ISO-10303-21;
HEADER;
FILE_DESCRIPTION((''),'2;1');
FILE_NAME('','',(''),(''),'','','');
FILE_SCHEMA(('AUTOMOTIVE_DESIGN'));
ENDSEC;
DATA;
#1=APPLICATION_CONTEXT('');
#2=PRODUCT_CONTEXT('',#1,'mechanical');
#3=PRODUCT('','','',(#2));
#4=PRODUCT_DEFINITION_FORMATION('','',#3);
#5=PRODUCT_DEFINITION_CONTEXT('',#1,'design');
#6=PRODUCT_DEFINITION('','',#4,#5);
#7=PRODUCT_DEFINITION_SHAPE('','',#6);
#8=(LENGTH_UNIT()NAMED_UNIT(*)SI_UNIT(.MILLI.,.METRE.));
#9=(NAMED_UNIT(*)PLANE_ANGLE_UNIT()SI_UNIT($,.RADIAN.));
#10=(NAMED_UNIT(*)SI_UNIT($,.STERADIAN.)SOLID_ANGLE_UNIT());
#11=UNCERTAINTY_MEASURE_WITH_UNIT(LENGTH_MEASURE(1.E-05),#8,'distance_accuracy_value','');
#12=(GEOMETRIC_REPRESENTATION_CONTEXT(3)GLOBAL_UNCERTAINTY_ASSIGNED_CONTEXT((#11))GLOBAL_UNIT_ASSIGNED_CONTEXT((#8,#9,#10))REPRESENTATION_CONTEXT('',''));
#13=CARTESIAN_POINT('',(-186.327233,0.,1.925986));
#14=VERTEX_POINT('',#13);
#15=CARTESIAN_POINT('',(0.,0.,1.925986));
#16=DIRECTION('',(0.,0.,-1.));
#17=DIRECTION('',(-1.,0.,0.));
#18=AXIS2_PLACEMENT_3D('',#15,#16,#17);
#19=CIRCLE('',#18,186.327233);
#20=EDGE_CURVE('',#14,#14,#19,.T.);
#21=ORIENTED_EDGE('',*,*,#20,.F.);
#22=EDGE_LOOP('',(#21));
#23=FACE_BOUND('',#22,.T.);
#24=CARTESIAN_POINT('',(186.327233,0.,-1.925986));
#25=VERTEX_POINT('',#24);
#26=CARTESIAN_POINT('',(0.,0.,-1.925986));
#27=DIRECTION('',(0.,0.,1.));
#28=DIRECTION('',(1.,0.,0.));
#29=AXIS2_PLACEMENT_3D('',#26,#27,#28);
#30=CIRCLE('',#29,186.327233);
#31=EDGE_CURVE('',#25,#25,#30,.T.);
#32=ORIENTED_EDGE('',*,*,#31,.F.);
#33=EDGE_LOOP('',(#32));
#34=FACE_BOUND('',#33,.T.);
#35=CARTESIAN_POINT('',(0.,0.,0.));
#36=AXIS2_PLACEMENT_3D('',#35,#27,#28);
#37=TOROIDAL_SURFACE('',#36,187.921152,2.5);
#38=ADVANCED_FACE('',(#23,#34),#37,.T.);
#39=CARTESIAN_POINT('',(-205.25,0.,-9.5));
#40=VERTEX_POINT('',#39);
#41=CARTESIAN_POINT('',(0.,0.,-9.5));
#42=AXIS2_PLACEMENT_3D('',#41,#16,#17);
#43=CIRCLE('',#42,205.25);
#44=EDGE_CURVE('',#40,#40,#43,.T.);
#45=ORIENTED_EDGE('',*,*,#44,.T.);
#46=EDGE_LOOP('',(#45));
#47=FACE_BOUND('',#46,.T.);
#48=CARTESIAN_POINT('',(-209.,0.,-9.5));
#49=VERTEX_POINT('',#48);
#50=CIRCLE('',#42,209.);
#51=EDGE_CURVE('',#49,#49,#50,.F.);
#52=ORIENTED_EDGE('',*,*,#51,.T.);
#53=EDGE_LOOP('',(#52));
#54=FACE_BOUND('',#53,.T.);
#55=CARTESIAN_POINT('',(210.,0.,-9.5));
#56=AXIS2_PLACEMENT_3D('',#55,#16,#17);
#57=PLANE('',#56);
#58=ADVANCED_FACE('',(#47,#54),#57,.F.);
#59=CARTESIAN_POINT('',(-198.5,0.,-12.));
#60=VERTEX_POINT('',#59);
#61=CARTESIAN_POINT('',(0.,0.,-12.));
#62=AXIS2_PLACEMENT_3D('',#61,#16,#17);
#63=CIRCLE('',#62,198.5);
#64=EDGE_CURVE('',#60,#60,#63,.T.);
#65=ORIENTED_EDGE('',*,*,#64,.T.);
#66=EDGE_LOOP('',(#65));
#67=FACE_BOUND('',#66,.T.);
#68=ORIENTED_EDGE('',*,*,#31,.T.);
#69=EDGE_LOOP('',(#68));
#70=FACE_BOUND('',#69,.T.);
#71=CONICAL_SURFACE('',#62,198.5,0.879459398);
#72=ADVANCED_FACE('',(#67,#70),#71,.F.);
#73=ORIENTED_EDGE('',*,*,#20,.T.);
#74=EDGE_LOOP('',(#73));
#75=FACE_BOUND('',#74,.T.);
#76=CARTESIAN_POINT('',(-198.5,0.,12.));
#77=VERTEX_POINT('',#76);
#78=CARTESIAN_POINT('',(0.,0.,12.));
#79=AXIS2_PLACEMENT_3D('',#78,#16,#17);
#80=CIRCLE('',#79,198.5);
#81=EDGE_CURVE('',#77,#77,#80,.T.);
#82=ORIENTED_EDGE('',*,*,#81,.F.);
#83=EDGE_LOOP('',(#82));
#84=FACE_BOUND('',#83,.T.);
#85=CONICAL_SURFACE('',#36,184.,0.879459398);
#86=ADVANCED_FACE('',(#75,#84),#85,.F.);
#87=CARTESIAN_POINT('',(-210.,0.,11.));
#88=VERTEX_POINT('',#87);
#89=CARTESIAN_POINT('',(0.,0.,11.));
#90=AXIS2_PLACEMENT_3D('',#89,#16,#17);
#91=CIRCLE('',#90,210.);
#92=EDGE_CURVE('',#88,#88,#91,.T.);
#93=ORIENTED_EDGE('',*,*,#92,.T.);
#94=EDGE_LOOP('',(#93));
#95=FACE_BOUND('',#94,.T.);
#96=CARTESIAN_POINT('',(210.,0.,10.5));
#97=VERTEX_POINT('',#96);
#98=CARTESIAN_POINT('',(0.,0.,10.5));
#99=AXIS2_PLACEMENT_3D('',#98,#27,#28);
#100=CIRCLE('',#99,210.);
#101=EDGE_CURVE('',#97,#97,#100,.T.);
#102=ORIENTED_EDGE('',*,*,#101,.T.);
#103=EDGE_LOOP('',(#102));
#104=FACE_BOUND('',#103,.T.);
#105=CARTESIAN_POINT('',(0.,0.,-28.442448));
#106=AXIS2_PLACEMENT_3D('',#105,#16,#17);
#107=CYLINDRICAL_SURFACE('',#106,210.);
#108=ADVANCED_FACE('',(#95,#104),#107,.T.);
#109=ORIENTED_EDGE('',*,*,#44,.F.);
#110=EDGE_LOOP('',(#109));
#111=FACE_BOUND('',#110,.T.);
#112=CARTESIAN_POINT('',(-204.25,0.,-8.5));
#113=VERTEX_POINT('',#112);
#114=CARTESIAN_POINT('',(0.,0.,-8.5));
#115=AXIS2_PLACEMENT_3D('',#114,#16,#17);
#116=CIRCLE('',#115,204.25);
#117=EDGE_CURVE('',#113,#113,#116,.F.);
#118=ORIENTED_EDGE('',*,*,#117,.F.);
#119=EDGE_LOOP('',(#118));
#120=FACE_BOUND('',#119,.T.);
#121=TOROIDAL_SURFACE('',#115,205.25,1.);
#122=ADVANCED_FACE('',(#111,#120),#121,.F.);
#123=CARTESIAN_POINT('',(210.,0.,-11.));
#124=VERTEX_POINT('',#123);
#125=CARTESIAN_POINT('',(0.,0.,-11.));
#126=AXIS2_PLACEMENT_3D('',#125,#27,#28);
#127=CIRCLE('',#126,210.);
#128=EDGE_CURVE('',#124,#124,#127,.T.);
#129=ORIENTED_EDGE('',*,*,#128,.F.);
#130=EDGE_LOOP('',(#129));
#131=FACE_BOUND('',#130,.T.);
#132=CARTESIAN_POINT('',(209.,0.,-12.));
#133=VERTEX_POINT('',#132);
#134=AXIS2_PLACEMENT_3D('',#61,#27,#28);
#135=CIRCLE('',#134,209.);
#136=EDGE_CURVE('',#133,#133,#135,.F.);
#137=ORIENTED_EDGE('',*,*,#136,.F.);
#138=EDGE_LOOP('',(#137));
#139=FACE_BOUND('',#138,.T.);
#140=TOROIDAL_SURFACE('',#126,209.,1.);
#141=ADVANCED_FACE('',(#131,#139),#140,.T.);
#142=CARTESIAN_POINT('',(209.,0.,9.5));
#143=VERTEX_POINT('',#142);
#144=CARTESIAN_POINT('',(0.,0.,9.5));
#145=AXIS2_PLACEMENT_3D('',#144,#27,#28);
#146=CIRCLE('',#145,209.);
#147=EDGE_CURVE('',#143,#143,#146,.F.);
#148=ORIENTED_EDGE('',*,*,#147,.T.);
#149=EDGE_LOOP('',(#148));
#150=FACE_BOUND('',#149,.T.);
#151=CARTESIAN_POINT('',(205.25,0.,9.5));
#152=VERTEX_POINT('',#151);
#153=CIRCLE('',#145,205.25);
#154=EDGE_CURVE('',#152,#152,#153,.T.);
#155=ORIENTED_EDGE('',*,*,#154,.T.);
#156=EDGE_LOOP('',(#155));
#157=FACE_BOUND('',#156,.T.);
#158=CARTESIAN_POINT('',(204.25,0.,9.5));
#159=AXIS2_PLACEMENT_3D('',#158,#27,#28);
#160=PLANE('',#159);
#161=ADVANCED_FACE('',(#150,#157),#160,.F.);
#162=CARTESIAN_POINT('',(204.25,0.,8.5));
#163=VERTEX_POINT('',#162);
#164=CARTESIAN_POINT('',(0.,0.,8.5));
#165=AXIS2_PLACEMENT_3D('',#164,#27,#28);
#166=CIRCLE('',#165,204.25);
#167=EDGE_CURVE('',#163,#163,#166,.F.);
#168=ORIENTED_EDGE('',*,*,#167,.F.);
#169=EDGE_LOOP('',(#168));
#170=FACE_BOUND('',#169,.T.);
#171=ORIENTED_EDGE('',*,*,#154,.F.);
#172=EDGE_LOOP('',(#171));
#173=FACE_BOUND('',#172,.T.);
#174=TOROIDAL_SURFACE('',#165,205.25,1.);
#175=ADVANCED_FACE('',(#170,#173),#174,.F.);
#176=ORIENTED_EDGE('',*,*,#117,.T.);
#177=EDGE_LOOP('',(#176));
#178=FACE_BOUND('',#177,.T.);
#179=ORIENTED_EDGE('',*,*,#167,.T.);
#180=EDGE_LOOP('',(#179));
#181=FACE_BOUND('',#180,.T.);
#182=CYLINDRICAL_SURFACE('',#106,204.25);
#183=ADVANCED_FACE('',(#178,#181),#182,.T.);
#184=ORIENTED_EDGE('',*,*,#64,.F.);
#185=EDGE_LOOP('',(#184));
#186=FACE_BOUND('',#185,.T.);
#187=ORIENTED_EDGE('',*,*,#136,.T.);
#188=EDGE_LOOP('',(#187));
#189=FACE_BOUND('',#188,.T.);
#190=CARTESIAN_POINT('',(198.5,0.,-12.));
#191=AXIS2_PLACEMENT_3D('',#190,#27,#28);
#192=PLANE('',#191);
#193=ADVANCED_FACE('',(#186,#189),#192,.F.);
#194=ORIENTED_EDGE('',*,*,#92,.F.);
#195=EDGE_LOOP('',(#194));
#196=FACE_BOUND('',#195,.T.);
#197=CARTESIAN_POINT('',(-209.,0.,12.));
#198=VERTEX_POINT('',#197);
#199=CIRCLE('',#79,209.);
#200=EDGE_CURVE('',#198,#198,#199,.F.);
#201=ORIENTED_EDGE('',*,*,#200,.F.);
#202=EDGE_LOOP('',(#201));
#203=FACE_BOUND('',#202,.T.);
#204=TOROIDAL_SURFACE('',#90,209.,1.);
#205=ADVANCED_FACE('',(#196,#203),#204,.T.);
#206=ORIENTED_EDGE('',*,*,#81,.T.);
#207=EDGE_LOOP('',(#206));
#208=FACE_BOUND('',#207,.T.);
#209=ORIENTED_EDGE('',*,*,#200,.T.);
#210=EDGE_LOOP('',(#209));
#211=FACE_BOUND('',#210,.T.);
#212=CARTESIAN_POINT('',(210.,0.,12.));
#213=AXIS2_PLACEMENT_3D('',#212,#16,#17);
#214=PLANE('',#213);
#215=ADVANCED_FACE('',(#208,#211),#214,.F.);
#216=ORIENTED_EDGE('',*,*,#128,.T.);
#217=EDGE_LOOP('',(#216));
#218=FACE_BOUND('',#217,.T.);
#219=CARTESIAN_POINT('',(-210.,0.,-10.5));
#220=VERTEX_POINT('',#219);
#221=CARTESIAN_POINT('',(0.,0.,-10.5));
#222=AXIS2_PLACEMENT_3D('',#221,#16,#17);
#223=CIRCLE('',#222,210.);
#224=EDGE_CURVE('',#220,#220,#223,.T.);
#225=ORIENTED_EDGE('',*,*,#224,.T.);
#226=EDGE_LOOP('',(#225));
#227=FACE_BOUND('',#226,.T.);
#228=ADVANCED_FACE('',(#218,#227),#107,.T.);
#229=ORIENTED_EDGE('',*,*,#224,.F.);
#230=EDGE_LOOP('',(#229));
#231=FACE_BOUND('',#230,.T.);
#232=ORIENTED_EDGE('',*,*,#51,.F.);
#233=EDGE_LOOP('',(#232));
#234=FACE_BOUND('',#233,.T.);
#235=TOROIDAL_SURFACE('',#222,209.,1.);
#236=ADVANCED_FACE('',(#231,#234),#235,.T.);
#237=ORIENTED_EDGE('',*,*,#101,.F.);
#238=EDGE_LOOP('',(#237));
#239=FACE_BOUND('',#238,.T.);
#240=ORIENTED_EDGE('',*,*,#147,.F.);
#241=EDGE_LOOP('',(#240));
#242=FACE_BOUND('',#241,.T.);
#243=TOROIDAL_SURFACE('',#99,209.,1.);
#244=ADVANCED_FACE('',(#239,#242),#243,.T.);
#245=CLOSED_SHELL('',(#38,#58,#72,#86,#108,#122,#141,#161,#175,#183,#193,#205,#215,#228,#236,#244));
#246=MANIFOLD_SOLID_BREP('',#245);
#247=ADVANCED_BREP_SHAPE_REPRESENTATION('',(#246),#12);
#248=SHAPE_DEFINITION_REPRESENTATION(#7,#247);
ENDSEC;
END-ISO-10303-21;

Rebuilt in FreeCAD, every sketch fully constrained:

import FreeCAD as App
import Part
import Sketcher

V = App.Vector


def edges_at(feature, points):
    """Names of the edges that pass closest to the given points."""
    edges = feature.Shape.Edges
    near = lambda p: min(range(len(edges)), key=lambda i: edges[i].distToShape(Part.Vertex(*p))[0])
    return sorted({f"Edge{near(p) + 1}" for p in points})


def add_polygon(sketch, points):
    """Adds a closed chain of lines whose ends are joined by coincident constraints."""
    first, n = sketch.GeometryCount, len(points)
    for a, b in zip(points, points[1:] + points[:1]):
        sketch.addGeometry(Part.LineSegment(App.Vector(*a, 0), App.Vector(*b, 0)), False)
    for i in range(n):
        sketch.addConstraint(Sketcher.Constraint("Coincident", first + i, 2, first + (i + 1) % n, 1))

doc = App.newDocument("Part")
body = doc.addObject("PartDesign::Body", "Body")

# Sketch on XZ plane
sketch1 = body.newObject("Sketcher::SketchObject", "Sketch")
sketch1.AttachmentSupport = (doc.getObject("XZ_Plane"), [""])
sketch1.MapMode = "FlatFace"
add_polygon(sketch1, [(198.5, -12), (184, 0), (198.5, 12), (210, 12), (210, 9.5), (204.2, 9.5), (204.2, -9.5), (210, -9.5), (210, -12)])  # lines 0-8
sketch1.addConstraint([
    Sketcher.Constraint("Horizontal", 2),
    Sketcher.Constraint("Vertical", 3),
    Sketcher.Constraint("Horizontal", 4),
    Sketcher.Constraint("Vertical", 5),
    Sketcher.Constraint("Horizontal", 6),
    Sketcher.Constraint("Vertical", 7),
    Sketcher.Constraint("Horizontal", 8),
    Sketcher.Constraint("Symmetric", 3, 2, 6, 2, -1),
    Sketcher.Constraint("Symmetric", 1, 2, 8, 2, -1),
    Sketcher.Constraint("PointOnObject", 0, 2, -1),
    Sketcher.Constraint("DistanceY", 5, 2, 5, 1, 19.0),
    Sketcher.Constraint("DistanceX", 2, 1, 2, 2, 11.5),
    Sketcher.Constraint("DistanceY", 3, 2, 3, 1, 2.5),
    Sketcher.Constraint("DistanceX", -1, 1, 0, 2, 184.0),
    Sketcher.Constraint("DistanceX", -1, 1, 2, 2, 210.0),
    Sketcher.Constraint("DistanceX", 4, 2, 4, 1, 5.75),
])
revolution = body.newObject("PartDesign::Revolution", "Revolution")
revolution.Profile = sketch1
revolution.ReferenceAxis = (sketch1, ["V_Axis"])
revolution.Angle = 360
doc.recompute()

fillet = body.newObject("PartDesign::Fillet", "Fillet")
fillet.Base = (revolution, edges_at(revolution, [(184, 0, 0)]))
fillet.Radius = 2.5
doc.recompute()

fillet2 = body.newObject("PartDesign::Fillet", "Fillet001")
fillet2.Base = (fillet, edges_at(fillet, [
    (210, 0, -12),
    (210, 0, 12),
    (210, 0, 9.5),
    (204.25, 0, 9.5),
    (204.25, 0, -9.5),
    (210, 0, -9.5),
]))
fillet2.Radius = 1

doc.recompute()
